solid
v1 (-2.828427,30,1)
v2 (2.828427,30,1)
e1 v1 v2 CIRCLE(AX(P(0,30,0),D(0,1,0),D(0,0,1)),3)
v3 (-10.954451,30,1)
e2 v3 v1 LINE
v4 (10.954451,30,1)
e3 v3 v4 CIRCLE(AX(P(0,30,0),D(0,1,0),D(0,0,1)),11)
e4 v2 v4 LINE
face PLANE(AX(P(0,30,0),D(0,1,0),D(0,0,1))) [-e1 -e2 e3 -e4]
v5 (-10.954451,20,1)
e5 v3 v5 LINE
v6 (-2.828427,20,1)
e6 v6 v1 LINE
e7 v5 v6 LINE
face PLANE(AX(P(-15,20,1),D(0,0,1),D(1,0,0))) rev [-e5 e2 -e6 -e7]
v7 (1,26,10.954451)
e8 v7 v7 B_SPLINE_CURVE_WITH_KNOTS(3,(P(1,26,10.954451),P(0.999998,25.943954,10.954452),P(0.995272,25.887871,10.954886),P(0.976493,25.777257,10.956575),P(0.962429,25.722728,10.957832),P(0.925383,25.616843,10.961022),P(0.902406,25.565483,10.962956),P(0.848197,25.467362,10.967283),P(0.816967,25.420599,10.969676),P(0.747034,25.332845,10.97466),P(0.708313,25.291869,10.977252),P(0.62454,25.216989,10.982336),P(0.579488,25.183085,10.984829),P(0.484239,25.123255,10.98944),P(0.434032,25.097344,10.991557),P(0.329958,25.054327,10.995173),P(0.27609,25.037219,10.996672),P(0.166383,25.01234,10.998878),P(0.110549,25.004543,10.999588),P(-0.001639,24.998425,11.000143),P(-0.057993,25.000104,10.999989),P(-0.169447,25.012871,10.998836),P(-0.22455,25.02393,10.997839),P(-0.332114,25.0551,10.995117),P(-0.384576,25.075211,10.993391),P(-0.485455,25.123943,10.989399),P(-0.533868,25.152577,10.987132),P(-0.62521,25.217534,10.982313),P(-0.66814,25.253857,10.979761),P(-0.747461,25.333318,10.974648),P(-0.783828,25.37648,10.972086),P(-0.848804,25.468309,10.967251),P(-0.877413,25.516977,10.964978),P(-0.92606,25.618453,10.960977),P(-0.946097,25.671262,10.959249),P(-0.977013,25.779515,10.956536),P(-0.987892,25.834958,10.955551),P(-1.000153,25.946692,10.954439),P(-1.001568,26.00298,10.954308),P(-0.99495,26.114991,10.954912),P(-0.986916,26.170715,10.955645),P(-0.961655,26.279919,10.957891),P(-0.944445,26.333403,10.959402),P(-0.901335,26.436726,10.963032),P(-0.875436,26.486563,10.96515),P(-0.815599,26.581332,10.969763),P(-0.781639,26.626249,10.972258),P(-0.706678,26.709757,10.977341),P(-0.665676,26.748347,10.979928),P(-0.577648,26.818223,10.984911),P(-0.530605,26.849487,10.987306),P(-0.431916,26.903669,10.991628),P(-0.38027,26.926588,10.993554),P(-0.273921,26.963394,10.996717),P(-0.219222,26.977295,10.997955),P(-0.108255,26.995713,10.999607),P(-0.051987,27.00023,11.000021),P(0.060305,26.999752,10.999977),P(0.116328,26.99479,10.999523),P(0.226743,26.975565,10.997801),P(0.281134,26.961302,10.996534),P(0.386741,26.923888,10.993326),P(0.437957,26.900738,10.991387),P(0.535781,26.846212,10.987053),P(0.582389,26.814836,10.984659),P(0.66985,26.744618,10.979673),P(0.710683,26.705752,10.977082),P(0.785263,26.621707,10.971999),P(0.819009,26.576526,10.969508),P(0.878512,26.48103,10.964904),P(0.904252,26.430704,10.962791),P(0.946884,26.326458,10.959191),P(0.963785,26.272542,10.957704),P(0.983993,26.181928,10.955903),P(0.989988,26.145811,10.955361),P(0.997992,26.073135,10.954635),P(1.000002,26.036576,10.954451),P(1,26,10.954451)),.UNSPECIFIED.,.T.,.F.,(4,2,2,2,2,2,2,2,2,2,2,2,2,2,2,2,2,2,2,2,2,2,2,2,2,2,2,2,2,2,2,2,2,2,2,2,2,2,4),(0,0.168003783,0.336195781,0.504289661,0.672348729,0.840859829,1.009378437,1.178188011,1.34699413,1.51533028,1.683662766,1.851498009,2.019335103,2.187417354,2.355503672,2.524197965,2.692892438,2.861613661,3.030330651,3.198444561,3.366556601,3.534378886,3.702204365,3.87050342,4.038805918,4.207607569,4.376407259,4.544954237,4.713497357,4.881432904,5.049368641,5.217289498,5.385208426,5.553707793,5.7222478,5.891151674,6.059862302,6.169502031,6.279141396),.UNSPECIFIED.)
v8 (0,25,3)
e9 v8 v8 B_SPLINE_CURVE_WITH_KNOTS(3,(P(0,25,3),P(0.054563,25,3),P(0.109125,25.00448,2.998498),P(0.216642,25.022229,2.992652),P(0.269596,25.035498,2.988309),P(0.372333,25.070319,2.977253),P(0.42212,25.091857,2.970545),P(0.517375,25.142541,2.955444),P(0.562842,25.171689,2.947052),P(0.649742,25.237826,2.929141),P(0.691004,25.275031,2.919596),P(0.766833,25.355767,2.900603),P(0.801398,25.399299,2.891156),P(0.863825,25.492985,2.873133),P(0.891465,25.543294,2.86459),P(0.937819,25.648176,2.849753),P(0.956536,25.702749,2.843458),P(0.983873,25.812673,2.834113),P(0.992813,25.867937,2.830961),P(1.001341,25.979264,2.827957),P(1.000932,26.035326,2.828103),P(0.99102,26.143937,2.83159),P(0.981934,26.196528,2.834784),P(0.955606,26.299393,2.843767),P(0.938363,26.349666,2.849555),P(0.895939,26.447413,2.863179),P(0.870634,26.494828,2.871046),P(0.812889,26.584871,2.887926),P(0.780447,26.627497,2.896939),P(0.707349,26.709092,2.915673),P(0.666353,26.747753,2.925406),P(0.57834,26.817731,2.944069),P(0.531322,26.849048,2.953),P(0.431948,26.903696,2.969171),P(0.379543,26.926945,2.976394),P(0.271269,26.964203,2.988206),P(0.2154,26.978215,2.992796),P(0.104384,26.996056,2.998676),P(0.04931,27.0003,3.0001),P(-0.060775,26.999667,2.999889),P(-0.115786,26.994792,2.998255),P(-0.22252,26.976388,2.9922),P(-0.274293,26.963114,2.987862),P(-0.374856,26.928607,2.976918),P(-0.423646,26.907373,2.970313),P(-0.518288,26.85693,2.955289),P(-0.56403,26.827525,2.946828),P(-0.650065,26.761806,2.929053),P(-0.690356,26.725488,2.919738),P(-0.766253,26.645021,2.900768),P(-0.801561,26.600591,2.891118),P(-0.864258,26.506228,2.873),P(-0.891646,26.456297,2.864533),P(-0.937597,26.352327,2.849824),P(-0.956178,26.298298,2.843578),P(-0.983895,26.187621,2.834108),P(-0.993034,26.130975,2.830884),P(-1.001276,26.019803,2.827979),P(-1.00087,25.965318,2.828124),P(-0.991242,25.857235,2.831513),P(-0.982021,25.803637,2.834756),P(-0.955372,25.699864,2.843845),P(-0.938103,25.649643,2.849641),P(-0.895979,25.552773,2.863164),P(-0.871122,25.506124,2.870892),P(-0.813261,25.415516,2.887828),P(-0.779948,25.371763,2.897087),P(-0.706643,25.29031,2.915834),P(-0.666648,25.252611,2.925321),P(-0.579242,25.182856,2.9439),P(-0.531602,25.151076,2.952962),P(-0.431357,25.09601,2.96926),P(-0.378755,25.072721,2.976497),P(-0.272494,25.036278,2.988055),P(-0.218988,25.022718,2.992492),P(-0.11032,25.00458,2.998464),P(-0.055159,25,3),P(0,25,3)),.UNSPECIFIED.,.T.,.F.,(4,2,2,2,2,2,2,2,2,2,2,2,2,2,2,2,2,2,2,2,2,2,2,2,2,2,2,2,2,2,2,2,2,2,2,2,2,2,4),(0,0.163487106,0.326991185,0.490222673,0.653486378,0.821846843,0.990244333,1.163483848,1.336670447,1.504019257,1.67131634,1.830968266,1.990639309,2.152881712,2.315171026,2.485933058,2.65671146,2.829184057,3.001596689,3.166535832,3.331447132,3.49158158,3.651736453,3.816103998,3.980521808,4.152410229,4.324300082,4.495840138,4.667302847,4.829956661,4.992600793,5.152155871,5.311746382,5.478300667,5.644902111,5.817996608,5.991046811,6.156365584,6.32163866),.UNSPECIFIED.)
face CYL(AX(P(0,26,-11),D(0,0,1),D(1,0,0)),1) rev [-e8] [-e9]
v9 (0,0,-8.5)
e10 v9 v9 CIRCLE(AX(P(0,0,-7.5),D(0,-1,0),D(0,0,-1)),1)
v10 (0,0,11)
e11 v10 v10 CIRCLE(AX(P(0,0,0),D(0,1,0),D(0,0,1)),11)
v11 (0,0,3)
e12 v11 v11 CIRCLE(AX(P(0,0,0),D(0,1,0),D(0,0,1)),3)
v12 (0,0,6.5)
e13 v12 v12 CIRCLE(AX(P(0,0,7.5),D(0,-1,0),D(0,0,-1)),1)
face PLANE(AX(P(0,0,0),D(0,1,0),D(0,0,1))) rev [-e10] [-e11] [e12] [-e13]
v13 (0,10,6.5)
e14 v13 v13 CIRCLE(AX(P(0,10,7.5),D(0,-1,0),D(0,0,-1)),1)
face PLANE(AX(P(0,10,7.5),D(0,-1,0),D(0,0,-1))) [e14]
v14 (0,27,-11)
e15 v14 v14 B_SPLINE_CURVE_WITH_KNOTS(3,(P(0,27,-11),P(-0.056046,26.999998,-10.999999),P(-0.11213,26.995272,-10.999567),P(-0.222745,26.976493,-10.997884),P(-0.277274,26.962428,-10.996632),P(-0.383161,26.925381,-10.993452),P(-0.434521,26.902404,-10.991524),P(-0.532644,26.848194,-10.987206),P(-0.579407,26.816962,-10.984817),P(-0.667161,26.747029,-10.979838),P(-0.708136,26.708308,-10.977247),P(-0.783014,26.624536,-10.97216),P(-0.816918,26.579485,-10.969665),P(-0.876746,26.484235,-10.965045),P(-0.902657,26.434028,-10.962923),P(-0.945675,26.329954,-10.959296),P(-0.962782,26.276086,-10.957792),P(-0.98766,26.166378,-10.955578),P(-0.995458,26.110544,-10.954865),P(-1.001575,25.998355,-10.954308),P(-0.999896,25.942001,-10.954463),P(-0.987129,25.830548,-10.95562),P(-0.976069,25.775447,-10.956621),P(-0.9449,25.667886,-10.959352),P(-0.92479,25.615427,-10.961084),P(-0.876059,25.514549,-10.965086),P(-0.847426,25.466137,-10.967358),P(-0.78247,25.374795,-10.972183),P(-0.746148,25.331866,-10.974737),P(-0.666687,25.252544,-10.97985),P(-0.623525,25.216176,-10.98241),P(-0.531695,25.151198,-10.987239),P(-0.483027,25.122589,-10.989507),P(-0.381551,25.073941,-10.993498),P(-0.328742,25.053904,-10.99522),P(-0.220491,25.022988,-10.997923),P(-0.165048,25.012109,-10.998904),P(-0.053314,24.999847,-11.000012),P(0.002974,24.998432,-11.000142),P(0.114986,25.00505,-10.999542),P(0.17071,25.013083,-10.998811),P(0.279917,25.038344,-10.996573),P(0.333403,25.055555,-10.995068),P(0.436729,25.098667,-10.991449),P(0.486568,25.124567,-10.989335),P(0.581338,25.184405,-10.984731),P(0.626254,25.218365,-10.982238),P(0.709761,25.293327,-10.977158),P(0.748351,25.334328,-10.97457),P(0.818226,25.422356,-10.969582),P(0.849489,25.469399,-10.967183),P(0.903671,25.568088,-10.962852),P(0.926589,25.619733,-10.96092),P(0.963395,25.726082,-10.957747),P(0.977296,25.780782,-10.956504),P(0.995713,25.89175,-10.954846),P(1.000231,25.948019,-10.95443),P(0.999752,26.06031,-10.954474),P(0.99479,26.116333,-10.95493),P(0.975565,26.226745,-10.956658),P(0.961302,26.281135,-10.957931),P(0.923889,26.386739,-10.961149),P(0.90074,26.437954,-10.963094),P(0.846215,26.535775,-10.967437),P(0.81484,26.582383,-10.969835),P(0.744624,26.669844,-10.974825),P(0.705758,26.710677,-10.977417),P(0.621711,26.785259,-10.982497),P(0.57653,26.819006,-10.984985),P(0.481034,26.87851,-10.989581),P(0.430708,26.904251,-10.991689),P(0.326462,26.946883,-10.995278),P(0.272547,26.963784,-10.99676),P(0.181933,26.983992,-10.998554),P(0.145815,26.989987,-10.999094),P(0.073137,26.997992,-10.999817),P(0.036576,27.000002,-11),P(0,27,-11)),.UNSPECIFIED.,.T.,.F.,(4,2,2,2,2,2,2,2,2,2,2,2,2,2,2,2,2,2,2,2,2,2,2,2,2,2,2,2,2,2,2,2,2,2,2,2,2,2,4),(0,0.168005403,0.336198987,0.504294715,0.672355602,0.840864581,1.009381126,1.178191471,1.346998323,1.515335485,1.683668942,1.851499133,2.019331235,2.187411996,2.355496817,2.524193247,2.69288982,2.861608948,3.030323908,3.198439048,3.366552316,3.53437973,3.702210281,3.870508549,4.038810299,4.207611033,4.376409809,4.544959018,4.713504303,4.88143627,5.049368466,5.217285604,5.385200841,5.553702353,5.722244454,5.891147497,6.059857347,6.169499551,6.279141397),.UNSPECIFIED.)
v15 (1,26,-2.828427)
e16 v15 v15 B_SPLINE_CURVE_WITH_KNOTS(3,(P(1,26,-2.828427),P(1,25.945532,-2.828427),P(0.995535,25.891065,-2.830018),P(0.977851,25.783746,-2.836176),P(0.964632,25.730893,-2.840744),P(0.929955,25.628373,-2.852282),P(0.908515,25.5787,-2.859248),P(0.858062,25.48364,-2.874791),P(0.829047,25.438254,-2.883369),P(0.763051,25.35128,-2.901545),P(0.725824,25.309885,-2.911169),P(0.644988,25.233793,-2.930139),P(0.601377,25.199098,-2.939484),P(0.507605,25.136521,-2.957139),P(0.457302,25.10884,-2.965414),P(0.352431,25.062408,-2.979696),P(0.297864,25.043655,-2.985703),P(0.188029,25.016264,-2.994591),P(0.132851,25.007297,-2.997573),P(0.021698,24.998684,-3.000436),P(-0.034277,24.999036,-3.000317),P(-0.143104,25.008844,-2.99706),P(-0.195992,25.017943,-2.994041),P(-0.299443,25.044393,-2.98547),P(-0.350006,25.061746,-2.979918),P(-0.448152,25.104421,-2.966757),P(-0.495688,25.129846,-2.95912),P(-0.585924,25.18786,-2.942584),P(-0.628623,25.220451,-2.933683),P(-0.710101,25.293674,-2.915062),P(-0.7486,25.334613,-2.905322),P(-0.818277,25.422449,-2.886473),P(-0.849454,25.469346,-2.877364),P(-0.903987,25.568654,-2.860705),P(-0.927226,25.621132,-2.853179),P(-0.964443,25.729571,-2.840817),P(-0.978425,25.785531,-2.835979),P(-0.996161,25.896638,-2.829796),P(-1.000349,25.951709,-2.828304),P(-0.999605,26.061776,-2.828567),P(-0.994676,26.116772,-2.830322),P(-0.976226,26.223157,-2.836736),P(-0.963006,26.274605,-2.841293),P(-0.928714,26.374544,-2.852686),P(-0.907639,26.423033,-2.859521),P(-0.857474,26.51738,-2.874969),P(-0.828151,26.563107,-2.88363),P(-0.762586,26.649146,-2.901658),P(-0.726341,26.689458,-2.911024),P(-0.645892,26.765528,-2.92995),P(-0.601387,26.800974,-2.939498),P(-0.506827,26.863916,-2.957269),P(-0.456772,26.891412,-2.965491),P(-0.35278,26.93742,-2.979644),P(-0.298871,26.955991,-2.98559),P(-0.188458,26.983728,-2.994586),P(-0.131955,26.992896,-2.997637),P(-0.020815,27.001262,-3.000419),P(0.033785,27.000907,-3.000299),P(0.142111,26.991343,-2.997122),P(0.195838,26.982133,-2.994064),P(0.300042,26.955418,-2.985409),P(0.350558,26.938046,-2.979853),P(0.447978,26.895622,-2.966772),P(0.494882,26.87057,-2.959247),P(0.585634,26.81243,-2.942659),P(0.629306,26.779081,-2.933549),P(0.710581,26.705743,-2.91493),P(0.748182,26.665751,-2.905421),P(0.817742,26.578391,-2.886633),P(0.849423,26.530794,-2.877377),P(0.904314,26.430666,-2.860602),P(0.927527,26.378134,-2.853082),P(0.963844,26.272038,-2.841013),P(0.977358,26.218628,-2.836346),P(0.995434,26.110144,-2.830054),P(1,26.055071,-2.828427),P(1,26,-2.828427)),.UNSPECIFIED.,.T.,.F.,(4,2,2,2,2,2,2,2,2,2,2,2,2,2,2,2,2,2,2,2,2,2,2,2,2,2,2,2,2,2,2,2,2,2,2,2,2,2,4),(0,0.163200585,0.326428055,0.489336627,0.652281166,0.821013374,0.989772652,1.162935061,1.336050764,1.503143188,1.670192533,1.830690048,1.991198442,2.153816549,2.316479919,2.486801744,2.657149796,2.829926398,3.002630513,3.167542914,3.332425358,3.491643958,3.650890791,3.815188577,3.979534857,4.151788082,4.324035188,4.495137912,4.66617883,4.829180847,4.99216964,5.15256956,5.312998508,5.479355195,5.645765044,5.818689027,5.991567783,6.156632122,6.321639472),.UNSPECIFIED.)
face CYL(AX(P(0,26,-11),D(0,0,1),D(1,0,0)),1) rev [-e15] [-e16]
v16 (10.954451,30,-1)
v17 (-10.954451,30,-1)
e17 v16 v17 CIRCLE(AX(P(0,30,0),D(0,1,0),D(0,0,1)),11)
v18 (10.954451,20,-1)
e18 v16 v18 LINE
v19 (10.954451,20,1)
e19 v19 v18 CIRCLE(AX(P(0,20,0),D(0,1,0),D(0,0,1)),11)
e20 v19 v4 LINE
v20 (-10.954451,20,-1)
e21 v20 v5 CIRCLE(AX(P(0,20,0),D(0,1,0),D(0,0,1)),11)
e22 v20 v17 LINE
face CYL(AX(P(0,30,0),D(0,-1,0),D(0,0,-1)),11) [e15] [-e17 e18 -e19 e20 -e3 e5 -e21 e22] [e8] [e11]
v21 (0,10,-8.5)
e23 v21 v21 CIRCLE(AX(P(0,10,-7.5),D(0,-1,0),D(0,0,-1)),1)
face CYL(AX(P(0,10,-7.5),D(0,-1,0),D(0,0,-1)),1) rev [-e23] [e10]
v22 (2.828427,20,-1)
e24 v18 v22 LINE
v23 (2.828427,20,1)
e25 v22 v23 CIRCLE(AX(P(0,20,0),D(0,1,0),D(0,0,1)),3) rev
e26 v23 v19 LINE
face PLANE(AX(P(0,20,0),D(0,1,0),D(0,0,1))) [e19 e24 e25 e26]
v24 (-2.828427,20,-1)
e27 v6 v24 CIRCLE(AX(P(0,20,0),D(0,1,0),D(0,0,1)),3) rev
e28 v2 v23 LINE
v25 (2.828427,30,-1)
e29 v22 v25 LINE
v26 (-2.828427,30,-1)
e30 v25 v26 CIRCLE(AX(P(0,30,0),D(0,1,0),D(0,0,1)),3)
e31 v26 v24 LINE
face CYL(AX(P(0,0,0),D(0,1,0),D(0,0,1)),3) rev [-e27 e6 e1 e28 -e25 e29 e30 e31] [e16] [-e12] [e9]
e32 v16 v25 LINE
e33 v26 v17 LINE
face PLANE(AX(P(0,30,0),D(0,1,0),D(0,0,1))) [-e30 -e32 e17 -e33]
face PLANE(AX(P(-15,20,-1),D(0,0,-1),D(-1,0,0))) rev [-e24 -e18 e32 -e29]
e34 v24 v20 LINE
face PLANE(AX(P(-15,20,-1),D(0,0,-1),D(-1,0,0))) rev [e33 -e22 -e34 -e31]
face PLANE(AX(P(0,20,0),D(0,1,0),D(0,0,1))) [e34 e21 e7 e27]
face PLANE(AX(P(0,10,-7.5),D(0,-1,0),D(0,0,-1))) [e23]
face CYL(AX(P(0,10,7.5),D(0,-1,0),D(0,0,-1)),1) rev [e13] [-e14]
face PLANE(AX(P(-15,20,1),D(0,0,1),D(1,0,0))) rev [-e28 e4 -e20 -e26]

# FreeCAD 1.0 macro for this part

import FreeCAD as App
import Part
import Sketcher

V = App.Vector
Q = App.Units.Quantity

doc = App.newDocument("Part")
body = doc.addObject("PartDesign::Body", "Body")

# Sketch on XZ plane
sketch1 = body.newObject("Sketcher::SketchObject", "Sketch")
sketch1.AttachmentSupport = (doc.getObject("XZ_Plane"), [""])
sketch1.MapMode = "FlatFace"
sketch1.addGeometry(Part.Circle(V(0, 0, 0), V(0, 0, 1), 11), False)
sketch1.addConstraint([
    Sketcher.Constraint("Coincident", 0, 3, -1, 1),
    Sketcher.Constraint("Diameter", 0, Q("22 mm")),
])
pad1 = body.newObject("PartDesign::Pad", "Pad")
pad1.Profile = sketch1
pad1.Length = 30
pad1.Reversed = True

# Sketch on XZ plane
sketch2 = body.newObject("Sketcher::SketchObject", "Sketch001")
sketch2.AttachmentSupport = (doc.getObject("XZ_Plane"), [""])
sketch2.MapMode = "FlatFace"
sketch2.AttachmentOffset = App.Placement(V(0, 0, -30), App.Rotation())
sketch2.addGeometry(Part.Circle(V(0, 0, 0), V(0, 0, 1), 3), False)
sketch2.addConstraint([
    Sketcher.Constraint("Coincident", 0, 3, -1, 1),
    Sketcher.Constraint("Diameter", 0, Q("6 mm")),
])
pocket1 = body.newObject("PartDesign::Pocket", "Pocket")
pocket1.Profile = sketch2
pocket1.Type = "ThroughAll"
pocket1.Reversed = True

# Sketch on XZ plane
sketch3 = body.newObject("Sketcher::SketchObject", "Sketch002")
sketch3.AttachmentSupport = (doc.getObject("XZ_Plane"), [""])
sketch3.MapMode = "FlatFace"
sketch3.AttachmentOffset = App.Placement(V(0, 0, -30), App.Rotation())
sketch3.addGeometry([
    Part.LineSegment(V(-15, -1, 0), V(-15, 1, 0)),
    Part.LineSegment(V(-15, 1, 0), V(15, 1, 0)),
    Part.LineSegment(V(15, 1, 0), V(15, -1, 0)),
    Part.LineSegment(V(15, -1, 0), V(-15, -1, 0)),
], False)
sketch3.addConstraint([
    Sketcher.Constraint("Coincident", 0, 2, 1, 1),
    Sketcher.Constraint("Coincident", 1, 2, 2, 1),
    Sketcher.Constraint("Coincident", 2, 2, 3, 1),
    Sketcher.Constraint("Coincident", 3, 2, 0, 1),
    Sketcher.Constraint("Vertical", 0),
    Sketcher.Constraint("Horizontal", 1),
    Sketcher.Constraint("Vertical", 2),
    Sketcher.Constraint("Horizontal", 3),
    Sketcher.Constraint("Symmetric", 0, 2, 2, 2, -1, 1),
    Sketcher.Constraint("DistanceX", 1, 1, 1, 2, Q("30 mm")),
    Sketcher.Constraint("DistanceY", 0, 1, 0, 2, Q("2 mm")),
])
pocket2 = body.newObject("PartDesign::Pocket", "Pocket001")
pocket2.Profile = sketch3
pocket2.Length = 10
pocket2.Reversed = True

# Sketch on XY plane
sketch4 = body.newObject("Sketcher::SketchObject", "Sketch003")
sketch4.AttachmentSupport = (doc.getObject("XY_Plane"), [""])
sketch4.MapMode = "FlatFace"
sketch4.AttachmentOffset = App.Placement(V(0, 0, -1), App.Rotation())
sketch4.addGeometry(Part.Circle(V(0, 26, 0), V(0, 0, 1), 1), False)
sketch4.addConstraint([
    Sketcher.Constraint("PointOnObject", 0, 3, -2),
    Sketcher.Constraint("Diameter", 0, Q("2 mm")),
    Sketcher.Constraint("DistanceY", -1, 1, 0, 3, Q("26 mm")),
])
pocket3 = body.newObject("PartDesign::Pocket", "Pocket002")
pocket3.Profile = sketch4
pocket3.Type = "ThroughAll"
pocket3.Midplane = True

# Sketch on XZ plane
sketch5 = body.newObject("Sketcher::SketchObject", "Sketch004")
sketch5.AttachmentSupport = (doc.getObject("XZ_Plane"), [""])
sketch5.MapMode = "FlatFace"
sketch5.addGeometry([
    Part.Circle(V(0, 7.5, 0), V(0, 0, 1), 1),
    Part.Circle(V(0, -7.5, 0), V(0, 0, 1), 1),
], False)
sketch5.addConstraint([
    Sketcher.Constraint("Equal", 0, 1),
    Sketcher.Constraint("Symmetric", 0, 3, 1, 3, -1, 1),
    Sketcher.Constraint("PointOnObject", 0, 3, -2),
    Sketcher.Constraint("Diameter", 0, Q("2 mm")),
    Sketcher.Constraint("DistanceY", 1, 3, 0, 3, Q("15 mm")),
])
pocket4 = body.newObject("PartDesign::Pocket", "Pocket003")
pocket4.Profile = sketch5
pocket4.Length = 10

doc.recompute()
